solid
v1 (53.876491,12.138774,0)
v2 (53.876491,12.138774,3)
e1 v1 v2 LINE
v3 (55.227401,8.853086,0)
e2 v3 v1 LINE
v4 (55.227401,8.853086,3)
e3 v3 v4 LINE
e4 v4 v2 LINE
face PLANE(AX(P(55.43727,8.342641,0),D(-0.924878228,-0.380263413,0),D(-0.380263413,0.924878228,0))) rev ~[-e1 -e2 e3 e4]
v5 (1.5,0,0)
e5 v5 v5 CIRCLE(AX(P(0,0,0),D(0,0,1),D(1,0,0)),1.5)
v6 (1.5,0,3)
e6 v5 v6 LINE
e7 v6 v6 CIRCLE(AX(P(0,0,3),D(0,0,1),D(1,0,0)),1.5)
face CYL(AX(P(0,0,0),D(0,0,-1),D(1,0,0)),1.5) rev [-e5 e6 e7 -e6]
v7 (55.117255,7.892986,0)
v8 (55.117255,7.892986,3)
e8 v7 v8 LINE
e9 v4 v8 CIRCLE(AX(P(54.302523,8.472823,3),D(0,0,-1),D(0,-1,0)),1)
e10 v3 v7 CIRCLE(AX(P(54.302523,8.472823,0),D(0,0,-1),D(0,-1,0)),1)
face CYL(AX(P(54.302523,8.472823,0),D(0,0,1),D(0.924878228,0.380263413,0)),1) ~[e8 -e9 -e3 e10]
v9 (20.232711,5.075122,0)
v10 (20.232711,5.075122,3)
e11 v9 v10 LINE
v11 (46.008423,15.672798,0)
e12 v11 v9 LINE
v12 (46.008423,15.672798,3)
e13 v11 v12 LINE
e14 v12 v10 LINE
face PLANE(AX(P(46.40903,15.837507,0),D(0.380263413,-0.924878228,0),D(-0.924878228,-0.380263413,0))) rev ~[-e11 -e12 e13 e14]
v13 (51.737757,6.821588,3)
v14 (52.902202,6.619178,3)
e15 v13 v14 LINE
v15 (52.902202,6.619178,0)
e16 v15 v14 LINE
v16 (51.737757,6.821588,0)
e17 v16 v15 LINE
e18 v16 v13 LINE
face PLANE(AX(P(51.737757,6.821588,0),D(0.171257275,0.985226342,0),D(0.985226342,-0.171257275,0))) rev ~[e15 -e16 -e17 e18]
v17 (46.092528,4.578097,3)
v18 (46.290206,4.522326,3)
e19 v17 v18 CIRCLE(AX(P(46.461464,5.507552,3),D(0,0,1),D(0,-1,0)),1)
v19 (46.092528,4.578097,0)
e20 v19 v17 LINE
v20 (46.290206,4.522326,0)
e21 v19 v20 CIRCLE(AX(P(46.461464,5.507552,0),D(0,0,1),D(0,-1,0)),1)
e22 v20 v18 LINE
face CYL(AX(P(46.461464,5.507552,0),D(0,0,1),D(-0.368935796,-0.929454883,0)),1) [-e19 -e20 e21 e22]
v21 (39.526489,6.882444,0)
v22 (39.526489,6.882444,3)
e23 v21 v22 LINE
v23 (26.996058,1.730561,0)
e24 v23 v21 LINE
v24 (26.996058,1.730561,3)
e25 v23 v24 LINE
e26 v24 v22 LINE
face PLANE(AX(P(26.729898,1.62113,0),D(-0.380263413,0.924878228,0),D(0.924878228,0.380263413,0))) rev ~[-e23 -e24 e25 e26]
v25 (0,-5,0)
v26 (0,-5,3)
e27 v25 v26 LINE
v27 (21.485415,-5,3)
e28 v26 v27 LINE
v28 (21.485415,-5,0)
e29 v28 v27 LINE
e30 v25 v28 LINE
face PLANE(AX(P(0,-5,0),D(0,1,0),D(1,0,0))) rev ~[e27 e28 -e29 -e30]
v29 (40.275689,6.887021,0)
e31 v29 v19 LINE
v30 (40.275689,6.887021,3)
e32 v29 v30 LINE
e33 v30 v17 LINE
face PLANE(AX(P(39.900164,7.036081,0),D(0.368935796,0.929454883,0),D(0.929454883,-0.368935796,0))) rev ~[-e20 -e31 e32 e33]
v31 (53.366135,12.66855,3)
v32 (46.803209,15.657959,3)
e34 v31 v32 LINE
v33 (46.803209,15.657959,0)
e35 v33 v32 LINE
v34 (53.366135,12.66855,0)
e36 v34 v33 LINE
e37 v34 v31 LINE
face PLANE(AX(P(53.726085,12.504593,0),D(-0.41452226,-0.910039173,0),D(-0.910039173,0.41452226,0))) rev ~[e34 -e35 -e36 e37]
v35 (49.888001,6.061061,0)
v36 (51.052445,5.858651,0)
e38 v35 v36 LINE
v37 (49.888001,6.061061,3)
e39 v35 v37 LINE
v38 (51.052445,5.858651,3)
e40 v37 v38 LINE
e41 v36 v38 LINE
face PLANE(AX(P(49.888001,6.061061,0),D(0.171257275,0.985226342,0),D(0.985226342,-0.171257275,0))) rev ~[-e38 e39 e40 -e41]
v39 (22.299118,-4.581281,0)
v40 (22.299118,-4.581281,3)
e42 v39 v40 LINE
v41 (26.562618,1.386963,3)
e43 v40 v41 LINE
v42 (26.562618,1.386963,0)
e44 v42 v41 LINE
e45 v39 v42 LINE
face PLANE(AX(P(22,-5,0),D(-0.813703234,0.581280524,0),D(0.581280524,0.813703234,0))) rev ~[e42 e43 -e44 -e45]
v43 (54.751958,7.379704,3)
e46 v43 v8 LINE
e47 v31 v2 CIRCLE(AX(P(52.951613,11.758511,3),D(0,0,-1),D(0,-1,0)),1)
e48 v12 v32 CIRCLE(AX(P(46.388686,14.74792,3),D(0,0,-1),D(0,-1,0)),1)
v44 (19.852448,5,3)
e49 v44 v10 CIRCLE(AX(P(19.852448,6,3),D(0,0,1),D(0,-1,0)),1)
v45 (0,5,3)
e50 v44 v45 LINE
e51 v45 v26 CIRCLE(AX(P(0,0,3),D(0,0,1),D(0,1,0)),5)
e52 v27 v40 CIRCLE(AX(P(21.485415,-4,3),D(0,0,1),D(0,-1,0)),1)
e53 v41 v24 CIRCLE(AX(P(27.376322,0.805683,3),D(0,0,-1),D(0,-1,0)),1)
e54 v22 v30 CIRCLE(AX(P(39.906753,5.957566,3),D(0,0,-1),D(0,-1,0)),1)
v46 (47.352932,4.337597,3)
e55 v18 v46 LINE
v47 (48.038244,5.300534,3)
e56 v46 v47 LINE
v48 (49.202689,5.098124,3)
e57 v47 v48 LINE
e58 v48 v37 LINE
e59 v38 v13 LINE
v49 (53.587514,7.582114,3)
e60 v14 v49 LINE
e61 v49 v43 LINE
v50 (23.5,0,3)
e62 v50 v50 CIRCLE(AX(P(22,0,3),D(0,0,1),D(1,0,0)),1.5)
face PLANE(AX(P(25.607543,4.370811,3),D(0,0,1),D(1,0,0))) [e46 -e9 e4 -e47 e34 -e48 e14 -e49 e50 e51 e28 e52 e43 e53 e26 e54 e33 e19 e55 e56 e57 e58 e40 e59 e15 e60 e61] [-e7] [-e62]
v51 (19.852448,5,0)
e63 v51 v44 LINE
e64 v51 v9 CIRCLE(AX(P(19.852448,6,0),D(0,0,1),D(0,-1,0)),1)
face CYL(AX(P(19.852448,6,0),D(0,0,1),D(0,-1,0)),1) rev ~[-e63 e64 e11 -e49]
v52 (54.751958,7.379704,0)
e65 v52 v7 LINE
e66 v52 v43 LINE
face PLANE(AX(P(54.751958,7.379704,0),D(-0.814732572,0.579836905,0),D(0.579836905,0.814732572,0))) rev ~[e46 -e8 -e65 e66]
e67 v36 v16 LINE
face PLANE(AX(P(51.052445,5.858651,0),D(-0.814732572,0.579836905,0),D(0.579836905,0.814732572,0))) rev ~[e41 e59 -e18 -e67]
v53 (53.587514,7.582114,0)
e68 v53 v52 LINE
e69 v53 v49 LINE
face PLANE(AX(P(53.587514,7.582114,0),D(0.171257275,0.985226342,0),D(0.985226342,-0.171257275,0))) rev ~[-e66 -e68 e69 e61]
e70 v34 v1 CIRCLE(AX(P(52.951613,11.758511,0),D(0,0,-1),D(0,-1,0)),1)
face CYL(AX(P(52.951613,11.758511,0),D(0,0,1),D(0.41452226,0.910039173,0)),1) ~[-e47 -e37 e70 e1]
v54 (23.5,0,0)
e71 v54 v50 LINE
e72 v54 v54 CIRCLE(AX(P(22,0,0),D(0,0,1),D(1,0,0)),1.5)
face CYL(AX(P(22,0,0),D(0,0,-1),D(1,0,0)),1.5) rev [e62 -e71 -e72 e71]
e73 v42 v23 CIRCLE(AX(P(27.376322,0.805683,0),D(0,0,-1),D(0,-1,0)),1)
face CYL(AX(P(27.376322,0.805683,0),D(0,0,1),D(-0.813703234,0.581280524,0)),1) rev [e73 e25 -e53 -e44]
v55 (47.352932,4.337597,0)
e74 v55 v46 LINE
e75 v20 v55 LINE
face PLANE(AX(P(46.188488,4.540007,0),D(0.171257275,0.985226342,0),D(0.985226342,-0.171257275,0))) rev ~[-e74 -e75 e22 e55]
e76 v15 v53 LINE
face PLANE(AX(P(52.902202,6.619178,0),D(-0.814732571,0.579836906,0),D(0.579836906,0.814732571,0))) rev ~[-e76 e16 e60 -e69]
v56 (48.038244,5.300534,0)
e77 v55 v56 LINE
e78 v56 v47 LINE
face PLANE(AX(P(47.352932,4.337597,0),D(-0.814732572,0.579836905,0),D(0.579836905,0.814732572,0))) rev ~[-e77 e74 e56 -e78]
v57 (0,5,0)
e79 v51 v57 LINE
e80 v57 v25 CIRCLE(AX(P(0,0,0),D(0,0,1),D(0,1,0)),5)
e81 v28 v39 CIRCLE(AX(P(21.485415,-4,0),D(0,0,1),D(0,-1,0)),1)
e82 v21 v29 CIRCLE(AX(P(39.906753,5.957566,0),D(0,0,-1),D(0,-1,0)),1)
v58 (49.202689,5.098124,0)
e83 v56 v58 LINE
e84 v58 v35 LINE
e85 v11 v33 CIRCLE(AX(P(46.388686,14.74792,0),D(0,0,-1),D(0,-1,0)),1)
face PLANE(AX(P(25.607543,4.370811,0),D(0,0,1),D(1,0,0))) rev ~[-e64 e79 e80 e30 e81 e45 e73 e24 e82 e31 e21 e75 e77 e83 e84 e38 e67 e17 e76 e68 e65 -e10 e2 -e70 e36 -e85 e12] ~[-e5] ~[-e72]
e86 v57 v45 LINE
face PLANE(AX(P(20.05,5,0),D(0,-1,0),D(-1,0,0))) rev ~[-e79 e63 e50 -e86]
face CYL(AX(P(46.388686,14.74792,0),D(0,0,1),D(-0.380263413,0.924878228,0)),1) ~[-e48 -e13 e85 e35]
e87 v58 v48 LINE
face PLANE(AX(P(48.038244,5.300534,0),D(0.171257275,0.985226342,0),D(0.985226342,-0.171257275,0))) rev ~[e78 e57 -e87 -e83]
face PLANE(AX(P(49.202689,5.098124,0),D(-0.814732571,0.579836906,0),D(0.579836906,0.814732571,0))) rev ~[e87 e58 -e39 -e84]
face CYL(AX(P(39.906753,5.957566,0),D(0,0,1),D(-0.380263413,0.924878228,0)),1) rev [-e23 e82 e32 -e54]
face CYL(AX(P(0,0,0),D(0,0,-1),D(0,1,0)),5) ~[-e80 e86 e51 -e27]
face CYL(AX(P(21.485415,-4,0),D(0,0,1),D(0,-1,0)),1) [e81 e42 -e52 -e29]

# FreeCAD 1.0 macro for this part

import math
import FreeCAD as App
import Part
import Sketcher

V = App.Vector
Q = App.Units.Quantity


def edges_at(feature, points):
    """Names of the edges that pass closest to the given points."""
    edges = feature.Shape.Edges
    near = lambda p: min(range(len(edges)), key=lambda i: edges[i].distToShape(Part.Vertex(*p))[0])
    return sorted({f"Edge{near(p) + 1}" for p in points})

doc = App.newDocument("Part")
params = doc.addObject("Spreadsheet::Sheet", "Params")
for row, (alias, value) in enumerate([
    ("sketch1_diameter", "3 mm"),
    ("sketch1_radius", "5 mm"),
    ("sketch1_width", "22 mm"),
    ("sketch1_length", "4.5 mm"),
    ("sketch1_length2", "28.5 mm"),
    ("pad1_length", "3 mm"),
    ("fillet_radius", "1 mm"),
], start=1):
    params.set(f"A{row}", alias)
    params.set(f"B{row}", "=" + value)
    params.setAlias(f"B{row}", alias)

body = doc.addObject("PartDesign::Body", "Body")

sketch1 = body.newObject("Sketcher::SketchObject", "Sketch")
sketch1.AttachmentSupport = (doc.getObject("XY_Plane"), [""])
sketch1.MapMode = "FlatFace"
sketch1.addGeometry(Part.LineSegment(V(20.1, 5, 0), V(0, 5, 0)), False)
sketch1.addGeometry(Part.ArcOfCircle(Part.Circle(V(0, 0, 0), V(0, 0, 1), 5), math.radians(90), math.radians(270)), False)
sketch1.addGeometry(Part.LineSegment(V(0, -5, 0), V(22, -5, 0)), False)
sketch1.addGeometry(Part.LineSegment(V(22, -5, 0), V(26.7, 1.6, 0)), False)
sketch1.addGeometry(Part.LineSegment(V(26.7, 1.6, 0), V(39.9, 7, 0)), False)
sketch1.addGeometry(Part.LineSegment(V(39.9, 7, 0), V(46.2, 4.5, 0)), False)
sketch1.addGeometry(Part.LineSegment(V(46.2, 4.5, 0), V(47.4, 4.3, 0)), False)
sketch1.addGeometry(Part.LineSegment(V(47.4, 4.3, 0), V(48, 5.3, 0)), False)
sketch1.addGeometry(Part.LineSegment(V(48, 5.3, 0), V(49.2, 5.1, 0)), False)
sketch1.addGeometry(Part.LineSegment(V(49.2, 5.1, 0), V(49.9, 6.1, 0)), False)
sketch1.addGeometry(Part.LineSegment(V(49.9, 6.1, 0), V(51.1, 5.9, 0)), False)
sketch1.addGeometry(Part.LineSegment(V(51.1, 5.9, 0), V(51.7, 6.8, 0)), False)
sketch1.addGeometry(Part.LineSegment(V(51.7, 6.8, 0), V(52.9, 6.6, 0)), False)
sketch1.addGeometry(Part.LineSegment(V(52.9, 6.6, 0), V(53.6, 7.6, 0)), False)
sketch1.addGeometry(Part.LineSegment(V(53.6, 7.6, 0), V(54.8, 7.4, 0)), False)
sketch1.addGeometry(Part.LineSegment(V(54.8, 7.4, 0), V(55.4, 8.3, 0)), False)
sketch1.addGeometry(Part.LineSegment(V(55.4, 8.3, 0), V(53.7, 12.5, 0)), False)
sketch1.addGeometry(Part.LineSegment(V(53.7, 12.5, 0), V(46.4, 15.8, 0)), False)
sketch1.addGeometry(Part.LineSegment(V(46.4, 15.8, 0), V(20.1, 5, 0)), False)
sketch1.addGeometry(Part.Circle(V(0, 0, 0), V(0, 0, 1), 1.5), False)
sketch1.addGeometry(Part.Circle(V(22, 0, 0), V(0, 0, 1), 1.5), False)
sketch1.addConstraint(Sketcher.Constraint("Tangent", 0, 2, 1, 1))
sketch1.addConstraint(Sketcher.Constraint("Tangent", 1, 2, 2, 1))
sketch1.addConstraint(Sketcher.Constraint("Coincident", 2, 2, 3, 1))
sketch1.addConstraint(Sketcher.Constraint("Coincident", 3, 2, 4, 1))
sketch1.addConstraint(Sketcher.Constraint("Coincident", 4, 2, 5, 1))
sketch1.addConstraint(Sketcher.Constraint("Coincident", 5, 2, 6, 1))
sketch1.addConstraint(Sketcher.Constraint("Coincident", 6, 2, 7, 1))
sketch1.addConstraint(Sketcher.Constraint("Coincident", 7, 2, 8, 1))
sketch1.addConstraint(Sketcher.Constraint("Coincident", 8, 2, 9, 1))
sketch1.addConstraint(Sketcher.Constraint("Coincident", 9, 2, 10, 1))
sketch1.addConstraint(Sketcher.Constraint("Coincident", 10, 2, 11, 1))
sketch1.addConstraint(Sketcher.Constraint("Coincident", 11, 2, 12, 1))
sketch1.addConstraint(Sketcher.Constraint("Coincident", 12, 2, 13, 1))
sketch1.addConstraint(Sketcher.Constraint("Coincident", 13, 2, 14, 1))
sketch1.addConstraint(Sketcher.Constraint("Coincident", 14, 2, 15, 1))
sketch1.addConstraint(Sketcher.Constraint("Coincident", 15, 2, 16, 1))
sketch1.addConstraint(Sketcher.Constraint("Coincident", 16, 2, 17, 1))
sketch1.addConstraint(Sketcher.Constraint("Coincident", 17, 2, 18, 1))
sketch1.addConstraint(Sketcher.Constraint("Coincident", 18, 2, 0, 1))
sketch1.addConstraint(Sketcher.Constraint("Horizontal", 0))
sketch1.addConstraint(Sketcher.Constraint("Horizontal", 2))
sketch1.addConstraint(Sketcher.Constraint("Coincident", 1, 3, -1, 1))
sketch1.addConstraint(Sketcher.Constraint("Coincident", 19, 3, -1, 1))
sketch1.addConstraint(Sketcher.Constraint("Equal", 19, 20))
sketch1.addConstraint(Sketcher.Constraint("PointOnObject", 20, 3, -1))
sketch1.addConstraint(Sketcher.Constraint("Parallel", 6, 8))
sketch1.addConstraint(Sketcher.Constraint("Parallel", 7, 9))
sketch1.addConstraint(Sketcher.Constraint("Parallel", 8, 10))
sketch1.addConstraint(Sketcher.Constraint("Parallel", 9, 11))
sketch1.addConstraint(Sketcher.Constraint("Parallel", 10, 12))
sketch1.addConstraint(Sketcher.Constraint("Parallel", 11, 13))
sketch1.addConstraint(Sketcher.Constraint("Parallel", 12, 14))
sketch1.addConstraint(Sketcher.Constraint("Parallel", 13, 15))
sketch1.addConstraint(Sketcher.Constraint("Perpendicular", 4, 16))
sketch1.addConstraint(Sketcher.Constraint("Perpendicular", 16, 18))
sketch1.addConstraint(Sketcher.Constraint("Vertical", 20, 3, 2, 2))
sketch1.addConstraint(Sketcher.Constraint("Equal", 6, 7))
sketch1.addConstraint(Sketcher.Constraint("Equal", 7, 8))
sketch1.addConstraint(Sketcher.Constraint("Equal", 8, 9))
sketch1.addConstraint(Sketcher.Constraint("Equal", 9, 10))
sketch1.addConstraint(Sketcher.Constraint("Equal", 10, 11))
sketch1.addConstraint(Sketcher.Constraint("Equal", 11, 12))
sketch1.addConstraint(Sketcher.Constraint("Equal", 12, 13))
sketch1.addConstraint(Sketcher.Constraint("Equal", 13, 14))
sketch1.addConstraint(Sketcher.Constraint("Equal", 14, 15))
sketch1.addConstraint(Sketcher.Constraint("Diameter", 19, 3.0))
sketch1.addConstraint(Sketcher.Constraint("Radius", 1, 5.0))
sketch1.addConstraint(Sketcher.Constraint("DistanceX", 2, 1, 2, 2, 22.0))
sketch1.addConstraint(Sketcher.Constraint("Distance", 16, 4.5))
sketch1.addConstraint(Sketcher.Constraint("Distance", 18, 28.5))
sketch1.addConstraint(Sketcher.Constraint("DistanceX", 0, 2, 0, 1, 20.05))
sketch1.addConstraint(Sketcher.Constraint("Angle", 4, Q("22.35 deg")))
sketch1.addConstraint(Sketcher.Constraint("Angle", 5, Q("-21.65 deg")))
sketch1.addConstraint(Sketcher.Constraint("Distance", 4, 14.24))
sketch1.addConstraint(Sketcher.Constraint("DistanceX", -1, 1, 9, 2, 49.888001))
sketch1.addConstraint(Sketcher.Constraint("DistanceX", -1, 1, 3, 2, 26.729898))
sketch1.addConstraint(Sketcher.Constraint("DistanceX", -1, 1, 12, 2, 52.902202))
sketch1.addConstraint(Sketcher.Constraint("DistanceY", -1, 1, 3, 2, 1.62113))
sketch1.addConstraint(Sketcher.Constraint("DistanceX", -1, 1, 5, 2, 46.188488))
sketch1.addConstraint(Sketcher.Constraint("DistanceY", -1, 1, 9, 2, 6.061061))
sketch1.setExpression("Constraints[45]", "Params.sketch1_diameter")
sketch1.setExpression("Constraints[46]", "Params.sketch1_radius")
sketch1.setExpression("Constraints[47]", "Params.sketch1_width")
sketch1.setExpression("Constraints[48]", "Params.sketch1_length")
sketch1.setExpression("Constraints[49]", "Params.sketch1_length2")
pad1 = body.newObject("PartDesign::Pad", "Pad")
pad1.Profile = sketch1
pad1.setExpression("Length", "Params.pad1_length")
doc.recompute()

fillet = body.newObject("PartDesign::Fillet", "Fillet")
fillet.Base = (pad1, edges_at(pad1, [
    (22, -5, 1.5),
    (20.05, 5, 1.5),
    (46.409, 15.838, 1.5),
    (53.726, 12.505, 1.5),
    (55.437, 8.343, 1.5),
    (46.188, 4.54, 1.5),
    (39.9, 7.036, 1.5),
    (26.73, 1.621, 1.5),
]))
fillet.setExpression("Radius", "Params.fillet_radius")

doc.recompute()
